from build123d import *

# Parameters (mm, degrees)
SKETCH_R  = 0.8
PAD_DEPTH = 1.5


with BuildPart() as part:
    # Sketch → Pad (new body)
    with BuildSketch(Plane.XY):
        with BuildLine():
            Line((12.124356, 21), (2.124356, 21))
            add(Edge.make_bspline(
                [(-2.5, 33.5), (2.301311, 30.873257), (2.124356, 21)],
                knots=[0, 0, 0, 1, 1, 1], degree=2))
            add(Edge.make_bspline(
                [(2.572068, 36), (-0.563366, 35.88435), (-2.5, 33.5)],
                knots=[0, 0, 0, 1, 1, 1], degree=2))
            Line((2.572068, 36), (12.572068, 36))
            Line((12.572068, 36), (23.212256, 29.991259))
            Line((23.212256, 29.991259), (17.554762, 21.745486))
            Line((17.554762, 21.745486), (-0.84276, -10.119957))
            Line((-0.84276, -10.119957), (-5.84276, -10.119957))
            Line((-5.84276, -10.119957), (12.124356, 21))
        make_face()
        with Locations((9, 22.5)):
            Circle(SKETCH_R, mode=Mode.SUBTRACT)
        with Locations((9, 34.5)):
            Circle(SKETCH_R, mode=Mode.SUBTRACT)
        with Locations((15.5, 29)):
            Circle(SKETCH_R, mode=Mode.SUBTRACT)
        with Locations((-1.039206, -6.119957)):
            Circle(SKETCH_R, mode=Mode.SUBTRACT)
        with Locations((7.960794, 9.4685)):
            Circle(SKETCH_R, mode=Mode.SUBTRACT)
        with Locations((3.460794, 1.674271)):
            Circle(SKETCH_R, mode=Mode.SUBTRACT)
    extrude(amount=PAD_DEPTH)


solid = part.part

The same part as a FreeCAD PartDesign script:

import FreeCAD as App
import Part
import Sketcher
Q = App.Units.Quantity

doc = App.newDocument("Part")
body = doc.addObject("PartDesign::Body", "Body")

sketch1 = body.newObject("Sketcher::SketchObject", "Sketch")
sketch1.AttachmentSupport = (doc.getObject("XY_Plane"), [""])
sketch1.MapMode = "FlatFace"
sketch1.addGeometry(Part.LineSegment(App.Vector(2.124356, 21, 0), App.Vector(12.124356, 21, 0)), False)
sketch1.addGeometry(Part.LineSegment(App.Vector(12.124356, 21, 0), App.Vector(-5.84276, -10.119957, 0)), False)
sketch1.addGeometry(Part.LineSegment(App.Vector(-5.84276, -10.119957, 0), App.Vector(-0.84276, -10.119957, 0)), False)
sketch1.addGeometry(Part.LineSegment(App.Vector(-0.84276, -10.119957, 0), App.Vector(17.554762, 21.745486, 0)), False)
sketch1.addGeometry(Part.LineSegment(App.Vector(17.554762, 21.745486, 0), App.Vector(23.212256, 29.991259, 0)), False)
sketch1.addGeometry(Part.LineSegment(App.Vector(23.212256, 29.991259, 0), App.Vector(12.572068, 36, 0)), False)
sketch1.addGeometry(Part.LineSegment(App.Vector(12.572068, 36, 0), App.Vector(2.572068, 36, 0)), False)
sketch1.addGeometry(Part.BSplineCurve([App.Vector(2.572068, 36, 0), App.Vector(-0.563366, 35.88435, 0), App.Vector(-2.5, 33.5, 0)], [3, 3], [0, 1], False, 2, [1, 1, 1], False), False)
sketch1.addGeometry(Part.BSplineCurve([App.Vector(-2.5, 33.5, 0), App.Vector(2.301311, 30.873257, 0), App.Vector(2.124356, 21, 0)], [3, 3], [0, 1], False, 2, [1, 1, 1], False), False)
sketch1.addGeometry(Part.Circle(App.Vector(7.960794, 9.4685, 0), App.Vector(0, 0, 1), 0.8), False)
sketch1.addGeometry(Part.Circle(App.Vector(3.460794, 1.674271, 0), App.Vector(0, 0, 1), 0.8), False)
sketch1.addGeometry(Part.Circle(App.Vector(-1.039206, -6.119957, 0), App.Vector(0, 0, 1), 0.8), False)
sketch1.addGeometry(Part.Circle(App.Vector(9, 22.5, 0), App.Vector(0, 0, 1), 0.8), False)
sketch1.addGeometry(Part.Circle(App.Vector(15.5, 29, 0), App.Vector(0, 0, 1), 0.8), False)
sketch1.addGeometry(Part.Circle(App.Vector(9, 34.5, 0), App.Vector(0, 0, 1), 0.8), False)
sketch1.addConstraint(Sketcher.Constraint("Block", 7))
sketch1.addConstraint(Sketcher.Constraint("Block", 8))
sketch1.addConstraint(Sketcher.Constraint("Coincident", 0, 2, 1, 1))
sketch1.addConstraint(Sketcher.Constraint("Coincident", 1, 2, 2, 1))
sketch1.addConstraint(Sketcher.Constraint("Coincident", 2, 2, 3, 1))
sketch1.addConstraint(Sketcher.Constraint("Coincident", 3, 2, 4, 1))
sketch1.addConstraint(Sketcher.Constraint("Coincident", 4, 2, 5, 1))
sketch1.addConstraint(Sketcher.Constraint("Coincident", 5, 2, 6, 1))
sketch1.addConstraint(Sketcher.Constraint("Coincident", 6, 2, 7, 1))
sketch1.addConstraint(Sketcher.Constraint("Coincident", 8, 2, 0, 1))
sketch1.addConstraint(Sketcher.Constraint("Horizontal", 0))
sketch1.addConstraint(Sketcher.Constraint("Horizontal", 2))
sketch1.addConstraint(Sketcher.Constraint("Horizontal", 6))
sketch1.addConstraint(Sketcher.Constraint("Equal", 9, 10))
sketch1.addConstraint(Sketcher.Constraint("Equal", 10, 11))
sketch1.addConstraint(Sketcher.Constraint("Equal", 11, 12))
sketch1.addConstraint(Sketcher.Constraint("Equal", 12, 13))
sketch1.addConstraint(Sketcher.Constraint("Equal", 13, 14))
sketch1.addConstraint(Sketcher.Constraint("Parallel", 1, 3))
sketch1.addConstraint(Sketcher.Constraint("Vertical", 12, 3, 14, 3))
sketch1.addConstraint(Sketcher.Constraint("Equal", 0, 6))
sketch1.addConstraint(Sketcher.Constraint("Diameter", 9, Q("1.6 mm")))
sketch1.addConstraint(Sketcher.Constraint("DistanceX", 0, 1, 0, 2, Q("10 mm")))
sketch1.addConstraint(Sketcher.Constraint("DistanceX", 2, 1, 2, 2, Q("5 mm")))
sketch1.addConstraint(Sketcher.Constraint("Angle", 1, Q("-120.000001 deg")))
sketch1.addConstraint(Sketcher.Constraint("Distance", 4, Q("10.000001 mm")))
sketch1.addConstraint(Sketcher.Constraint("DistanceX", -1, 1, 12, 3, Q("9 mm")))
sketch1.addConstraint(Sketcher.Constraint("DistanceY", -1, 1, 13, 3, Q("29 mm")))
sketch1.addConstraint(Sketcher.Constraint("DistanceX", 11, 3, 9, 3, Q("9 mm")))
sketch1.addConstraint(Sketcher.Constraint("DistanceY", 12, 3, 14, 3, Q("12 mm")))
sketch1.addConstraint(Sketcher.Constraint("DistanceY", 1, 2, 11, 3, Q("4 mm")))
sketch1.addConstraint(Sketcher.Constraint("DistanceY", -1, 1, 12, 3, Q("22.5 mm")))
sketch1.addConstraint(Sketcher.Constraint("DistanceX", -1, 1, 13, 3, Q("15.5 mm")))
sketch1.addConstraint(Sketcher.Constraint("DistanceX", 10, 3, 9, 3, Q("4.5 mm")))
sketch1.addConstraint(Sketcher.Constraint("DistanceY", -1, 1, 9, 3, Q("9.4685 mm")))
sketch1.addConstraint(Sketcher.Constraint("DistanceX", 0, 2, 4, 2, Q("11.0879 mm")))
sketch1.addConstraint(Sketcher.Constraint("Distance", 1, Q("35.934231 mm")))
sketch1.addConstraint(Sketcher.Constraint("DistanceY", -1, 1, 10, 3, Q("1.674271 mm")))
sketch1.addConstraint(Sketcher.Constraint("DistanceX", -1, 1, 3, 2, Q("17.554762 mm")))
sketch1.addConstraint(Sketcher.Constraint("DistanceX", -1, 1, 9, 3, Q("7.960794 mm")))
pad1 = body.newObject("PartDesign::Pad", "Pad")
pad1.Profile = sketch1
pad1.Length = 1.5

doc.recompute()
